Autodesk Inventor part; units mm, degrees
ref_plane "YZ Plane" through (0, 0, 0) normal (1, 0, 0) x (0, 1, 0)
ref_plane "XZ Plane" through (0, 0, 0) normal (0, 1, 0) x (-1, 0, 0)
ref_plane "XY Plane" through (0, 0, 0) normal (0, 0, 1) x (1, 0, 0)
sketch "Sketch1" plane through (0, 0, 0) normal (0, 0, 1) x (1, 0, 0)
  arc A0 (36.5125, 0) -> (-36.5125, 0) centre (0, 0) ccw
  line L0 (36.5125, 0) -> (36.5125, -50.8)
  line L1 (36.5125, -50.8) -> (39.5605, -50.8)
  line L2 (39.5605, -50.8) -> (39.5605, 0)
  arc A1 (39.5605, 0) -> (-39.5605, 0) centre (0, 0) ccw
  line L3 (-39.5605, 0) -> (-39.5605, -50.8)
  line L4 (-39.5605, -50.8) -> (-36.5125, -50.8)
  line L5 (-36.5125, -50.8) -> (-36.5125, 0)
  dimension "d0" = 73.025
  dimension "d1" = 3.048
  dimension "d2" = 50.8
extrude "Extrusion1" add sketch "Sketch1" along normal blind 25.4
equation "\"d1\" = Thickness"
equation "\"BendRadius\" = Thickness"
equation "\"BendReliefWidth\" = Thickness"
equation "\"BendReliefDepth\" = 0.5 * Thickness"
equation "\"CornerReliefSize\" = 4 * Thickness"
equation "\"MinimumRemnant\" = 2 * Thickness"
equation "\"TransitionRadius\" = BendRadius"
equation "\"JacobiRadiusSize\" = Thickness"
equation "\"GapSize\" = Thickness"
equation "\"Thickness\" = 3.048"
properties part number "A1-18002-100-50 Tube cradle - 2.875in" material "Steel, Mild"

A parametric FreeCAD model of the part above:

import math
import FreeCAD as App
import Part
import Sketcher
from FreeCAD import Vector
Q = App.Units.Quantity

doc = App.newDocument("Part")
body = doc.addObject("PartDesign::Body", "Body")

sketch1 = body.newObject("Sketcher::SketchObject", "Sketch")
sketch1.AttachmentSupport = (doc.getObject("XY_Plane"), [""])
sketch1.MapMode = "FlatFace"
sketch1.addGeometry([
    Part.ArcOfCircle(Part.Circle(Vector(0, 0, 0), Vector(0, 0, 1), 36.5), math.radians(0), math.radians(180)),
    Part.LineSegment(Vector(36.5, 0, 0), Vector(36.5, -50.8, 0)),
    Part.LineSegment(Vector(36.5, -50.8, 0), Vector(39.6, -50.8, 0)),
    Part.LineSegment(Vector(39.6, -50.8, 0), Vector(39.6, 0, 0)),
    Part.ArcOfCircle(Part.Circle(Vector(0, 0, 0), Vector(0, 0, 1), 39.6), math.radians(0), math.radians(180)),
    Part.LineSegment(Vector(-39.6, 0, 0), Vector(-39.6, -50.8, 0)),
    Part.LineSegment(Vector(-39.6, -50.8, 0), Vector(-36.5, -50.8, 0)),
    Part.LineSegment(Vector(-36.5, -50.8, 0), Vector(-36.5, 0, 0)),
], False)
sketch1.addConstraint([
    Sketcher.Constraint("Tangent", 0, 1, 1, 1),
    Sketcher.Constraint("Coincident", 1, 2, 2, 1),
    Sketcher.Constraint("Coincident", 2, 2, 3, 1),
    Sketcher.Constraint("Tangent", 3, 2, 4, 1),
    Sketcher.Constraint("Tangent", 4, 2, 5, 1),
    Sketcher.Constraint("Coincident", 5, 2, 6, 1),
    Sketcher.Constraint("Coincident", 6, 2, 7, 1),
    Sketcher.Constraint("Tangent", 7, 2, 0, 2),
    Sketcher.Constraint("Vertical", 1),
    Sketcher.Constraint("Horizontal", 2),
    Sketcher.Constraint("Vertical", 3),
    Sketcher.Constraint("Vertical", 5),
    Sketcher.Constraint("Horizontal", 6),
    Sketcher.Constraint("Vertical", 7),
    Sketcher.Constraint("Coincident", 0, 3, -1, 1),
    Sketcher.Constraint("Coincident", 4, 3, -1, 1),
    Sketcher.Constraint("Horizontal", 2, 2, 5, 2),
    Sketcher.Constraint("DistanceY", 1, 2, 1, 1, Q("2 in")),
    Sketcher.Constraint("Radius", 0, Q("1.4375 in")),
    Sketcher.Constraint("DistanceX", 2, 1, 2, 2, Q("0.12 in")),
])
pad1 = body.newObject("PartDesign::Pad", "Pad")
pad1.Profile = sketch1
pad1.Length = Q("1 in")

doc.recompute()
